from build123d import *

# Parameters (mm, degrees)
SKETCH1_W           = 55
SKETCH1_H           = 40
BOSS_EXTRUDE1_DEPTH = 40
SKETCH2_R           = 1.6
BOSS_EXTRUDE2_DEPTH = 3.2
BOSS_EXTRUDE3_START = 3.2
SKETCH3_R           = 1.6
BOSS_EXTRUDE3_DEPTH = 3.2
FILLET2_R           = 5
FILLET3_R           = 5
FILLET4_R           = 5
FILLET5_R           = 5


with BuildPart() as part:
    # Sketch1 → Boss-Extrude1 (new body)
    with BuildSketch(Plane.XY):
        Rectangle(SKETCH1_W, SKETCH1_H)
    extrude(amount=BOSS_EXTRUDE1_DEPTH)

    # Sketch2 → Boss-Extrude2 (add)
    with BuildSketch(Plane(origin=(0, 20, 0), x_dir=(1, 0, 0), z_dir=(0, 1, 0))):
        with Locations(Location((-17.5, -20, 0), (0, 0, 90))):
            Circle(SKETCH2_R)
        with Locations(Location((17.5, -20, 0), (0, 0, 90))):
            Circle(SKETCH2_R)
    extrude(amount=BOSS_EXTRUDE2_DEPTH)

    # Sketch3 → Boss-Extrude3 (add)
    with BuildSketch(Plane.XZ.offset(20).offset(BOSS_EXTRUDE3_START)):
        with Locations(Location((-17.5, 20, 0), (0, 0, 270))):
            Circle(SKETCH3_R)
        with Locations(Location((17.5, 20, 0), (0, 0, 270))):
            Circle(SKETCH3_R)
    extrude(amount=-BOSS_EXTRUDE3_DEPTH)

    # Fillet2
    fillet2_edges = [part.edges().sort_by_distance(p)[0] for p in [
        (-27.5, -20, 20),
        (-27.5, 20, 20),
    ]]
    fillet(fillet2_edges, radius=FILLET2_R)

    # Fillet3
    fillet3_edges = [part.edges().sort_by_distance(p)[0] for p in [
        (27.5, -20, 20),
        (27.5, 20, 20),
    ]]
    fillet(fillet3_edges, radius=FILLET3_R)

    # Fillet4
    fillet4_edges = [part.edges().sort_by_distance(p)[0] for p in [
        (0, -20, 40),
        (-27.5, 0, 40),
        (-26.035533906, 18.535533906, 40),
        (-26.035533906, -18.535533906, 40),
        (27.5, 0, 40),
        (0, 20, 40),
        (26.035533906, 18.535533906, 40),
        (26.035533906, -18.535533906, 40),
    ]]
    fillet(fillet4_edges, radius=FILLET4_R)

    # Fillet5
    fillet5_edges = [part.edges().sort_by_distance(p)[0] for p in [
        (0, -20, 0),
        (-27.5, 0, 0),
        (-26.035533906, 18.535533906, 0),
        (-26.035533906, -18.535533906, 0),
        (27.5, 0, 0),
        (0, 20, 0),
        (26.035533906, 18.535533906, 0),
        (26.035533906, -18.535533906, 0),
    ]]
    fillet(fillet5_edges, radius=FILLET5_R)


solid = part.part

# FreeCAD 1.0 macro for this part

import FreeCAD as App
import Part
import Sketcher
from FreeCAD import Vector


def edges_at(feature, points):
    """Names of the edges that pass closest to the given points."""
    edges = feature.Shape.Edges
    near = lambda p: min(range(len(edges)), key=lambda i: edges[i].distToShape(Part.Vertex(*p))[0])
    return sorted({f"Edge{near(p) + 1}" for p in points})

doc = App.newDocument("Part")
body = doc.addObject("PartDesign::Body", "Body")

sketch1 = doc.addObject("Sketcher::SketchObject", "Sketch")
body.addObject(sketch1)
sketch1.AttachmentSupport = (doc.XY_Plane, [""])
sketch1.MapMode = "FlatFace"
sketch1.addGeometry([
    Part.LineSegment(Vector(-28, 20, 0), Vector(-28, -20, 0)),
    Part.LineSegment(Vector(-28, -20, 0), Vector(28, -20, 0)),
    Part.LineSegment(Vector(28, -20, 0), Vector(28, 20, 0)),
    Part.LineSegment(Vector(28, 20, 0), Vector(-28, 20, 0)),
], False)
sketch1.addConstraint([
    Sketcher.Constraint("Coincident", 0, 2, 1, 1),
    Sketcher.Constraint("Coincident", 1, 2, 2, 1),
    Sketcher.Constraint("Coincident", 2, 2, 3, 1),
    Sketcher.Constraint("Coincident", 3, 2, 0, 1),
    Sketcher.Constraint("Vertical", 0),
    Sketcher.Constraint("Horizontal", 1),
    Sketcher.Constraint("Vertical", 2),
    Sketcher.Constraint("Horizontal", 3),
    Sketcher.Constraint("Symmetric", 0, 2, 2, 2, -1, 1),
    Sketcher.Constraint("DistanceX", 1, 1, 1, 2, 55.0),
    Sketcher.Constraint("DistanceY", 0, 2, 0, 1, 40.0),
])
pad1 = doc.addObject("PartDesign::Pad", "Pad")
body.addObject(pad1)
pad1.Profile = sketch1
pad1.Length = 40

sketch2 = doc.addObject("Sketcher::SketchObject", "Sketch001")
body.addObject(sketch2)
sketch2.AttachmentSupport = (doc.XZ_Plane, [""])
sketch2.MapMode = "FlatFace"
sketch2.AttachmentOffset = App.Placement(Vector(0, 0, -20), App.Rotation())
sketch2.addGeometry([
    Part.Circle(Vector(-17.5, 20, 0), Vector(0, 0, 1), 1.6),
    Part.Circle(Vector(17.5, 20, 0), Vector(0, 0, 1), 1.6),
], False)
sketch2.addConstraint([
    Sketcher.Constraint("Equal", 0, 1),
    Sketcher.Constraint("Symmetric", 0, 3, 1, 3, -2),
    Sketcher.Constraint("Diameter", 0, 3.2),
    Sketcher.Constraint("DistanceY", -1, 1, 0, 3, 20.0),
    Sketcher.Constraint("DistanceX", 0, 3, 1, 3, 35.0),
])
pad2 = doc.addObject("PartDesign::Pad", "Pad001")
body.addObject(pad2)
pad2.Profile = sketch2
pad2.Length = 3.2
pad2.Reversed = True

sketch3 = doc.addObject("Sketcher::SketchObject", "Sketch002")
body.addObject(sketch3)
sketch3.AttachmentSupport = (doc.XZ_Plane, [""])
sketch3.MapMode = "FlatFace"
sketch3.AttachmentOffset = App.Placement(Vector(0, 0, 23.2), App.Rotation())
sketch3.addGeometry([
    Part.Circle(Vector(-17.5, 20, 0), Vector(0, 0, 1), 1.6),
    Part.Circle(Vector(17.5, 20, 0), Vector(0, 0, 1), 1.6),
], False)
sketch3.addConstraint([
    Sketcher.Constraint("Equal", 0, 1),
    Sketcher.Constraint("Symmetric", 0, 3, 1, 3, -2),
    Sketcher.Constraint("Diameter", 0, 3.2),
    Sketcher.Constraint("DistanceY", -1, 1, 0, 3, 20.0),
    Sketcher.Constraint("DistanceX", 0, 3, 1, 3, 35.0),
])
pad3 = doc.addObject("PartDesign::Pad", "Pad002")
body.addObject(pad3)
pad3.Profile = sketch3
pad3.Length = 3.2
pad3.Reversed = True
doc.recompute()

fillet = doc.addObject("PartDesign::Fillet", "Fillet")
body.addObject(fillet)
fillet.Base = (pad3, edges_at(pad3, [(-27.5, -20, 20), (-27.5, 20, 20)]))
fillet.Radius = 5
doc.recompute()

fillet2 = doc.addObject("PartDesign::Fillet", "Fillet001")
body.addObject(fillet2)
fillet2.Base = (fillet, edges_at(fillet, [(27.5, -20, 20), (27.5, 20, 20)]))
fillet2.Radius = 5
doc.recompute()

fillet3 = doc.addObject("PartDesign::Fillet", "Fillet002")
body.addObject(fillet3)
fillet3.Base = (fillet2, edges_at(fillet2, [
    (0, -20, 40),
    (-27.5, 0, 40),
    (-26.036, 18.536, 40),
    (-26.036, -18.536, 40),
    (27.5, 0, 40),
    (0, 20, 40),
    (26.036, 18.536, 40),
    (26.036, -18.536, 40),
]))
fillet3.Radius = 5
doc.recompute()

fillet4 = doc.addObject("PartDesign::Fillet", "Fillet003")
body.addObject(fillet4)
fillet4.Base = (fillet3, edges_at(fillet3, [
    (0, -20, 0),
    (-27.5, 0, 0),
    (-26.036, 18.536, 0),
    (-26.036, -18.536, 0),
    (27.5, 0, 0),
    (0, 20, 0),
    (26.036, 18.536, 0),
    (26.036, -18.536, 0),
]))
fillet4.Radius = 5

doc.recompute()
